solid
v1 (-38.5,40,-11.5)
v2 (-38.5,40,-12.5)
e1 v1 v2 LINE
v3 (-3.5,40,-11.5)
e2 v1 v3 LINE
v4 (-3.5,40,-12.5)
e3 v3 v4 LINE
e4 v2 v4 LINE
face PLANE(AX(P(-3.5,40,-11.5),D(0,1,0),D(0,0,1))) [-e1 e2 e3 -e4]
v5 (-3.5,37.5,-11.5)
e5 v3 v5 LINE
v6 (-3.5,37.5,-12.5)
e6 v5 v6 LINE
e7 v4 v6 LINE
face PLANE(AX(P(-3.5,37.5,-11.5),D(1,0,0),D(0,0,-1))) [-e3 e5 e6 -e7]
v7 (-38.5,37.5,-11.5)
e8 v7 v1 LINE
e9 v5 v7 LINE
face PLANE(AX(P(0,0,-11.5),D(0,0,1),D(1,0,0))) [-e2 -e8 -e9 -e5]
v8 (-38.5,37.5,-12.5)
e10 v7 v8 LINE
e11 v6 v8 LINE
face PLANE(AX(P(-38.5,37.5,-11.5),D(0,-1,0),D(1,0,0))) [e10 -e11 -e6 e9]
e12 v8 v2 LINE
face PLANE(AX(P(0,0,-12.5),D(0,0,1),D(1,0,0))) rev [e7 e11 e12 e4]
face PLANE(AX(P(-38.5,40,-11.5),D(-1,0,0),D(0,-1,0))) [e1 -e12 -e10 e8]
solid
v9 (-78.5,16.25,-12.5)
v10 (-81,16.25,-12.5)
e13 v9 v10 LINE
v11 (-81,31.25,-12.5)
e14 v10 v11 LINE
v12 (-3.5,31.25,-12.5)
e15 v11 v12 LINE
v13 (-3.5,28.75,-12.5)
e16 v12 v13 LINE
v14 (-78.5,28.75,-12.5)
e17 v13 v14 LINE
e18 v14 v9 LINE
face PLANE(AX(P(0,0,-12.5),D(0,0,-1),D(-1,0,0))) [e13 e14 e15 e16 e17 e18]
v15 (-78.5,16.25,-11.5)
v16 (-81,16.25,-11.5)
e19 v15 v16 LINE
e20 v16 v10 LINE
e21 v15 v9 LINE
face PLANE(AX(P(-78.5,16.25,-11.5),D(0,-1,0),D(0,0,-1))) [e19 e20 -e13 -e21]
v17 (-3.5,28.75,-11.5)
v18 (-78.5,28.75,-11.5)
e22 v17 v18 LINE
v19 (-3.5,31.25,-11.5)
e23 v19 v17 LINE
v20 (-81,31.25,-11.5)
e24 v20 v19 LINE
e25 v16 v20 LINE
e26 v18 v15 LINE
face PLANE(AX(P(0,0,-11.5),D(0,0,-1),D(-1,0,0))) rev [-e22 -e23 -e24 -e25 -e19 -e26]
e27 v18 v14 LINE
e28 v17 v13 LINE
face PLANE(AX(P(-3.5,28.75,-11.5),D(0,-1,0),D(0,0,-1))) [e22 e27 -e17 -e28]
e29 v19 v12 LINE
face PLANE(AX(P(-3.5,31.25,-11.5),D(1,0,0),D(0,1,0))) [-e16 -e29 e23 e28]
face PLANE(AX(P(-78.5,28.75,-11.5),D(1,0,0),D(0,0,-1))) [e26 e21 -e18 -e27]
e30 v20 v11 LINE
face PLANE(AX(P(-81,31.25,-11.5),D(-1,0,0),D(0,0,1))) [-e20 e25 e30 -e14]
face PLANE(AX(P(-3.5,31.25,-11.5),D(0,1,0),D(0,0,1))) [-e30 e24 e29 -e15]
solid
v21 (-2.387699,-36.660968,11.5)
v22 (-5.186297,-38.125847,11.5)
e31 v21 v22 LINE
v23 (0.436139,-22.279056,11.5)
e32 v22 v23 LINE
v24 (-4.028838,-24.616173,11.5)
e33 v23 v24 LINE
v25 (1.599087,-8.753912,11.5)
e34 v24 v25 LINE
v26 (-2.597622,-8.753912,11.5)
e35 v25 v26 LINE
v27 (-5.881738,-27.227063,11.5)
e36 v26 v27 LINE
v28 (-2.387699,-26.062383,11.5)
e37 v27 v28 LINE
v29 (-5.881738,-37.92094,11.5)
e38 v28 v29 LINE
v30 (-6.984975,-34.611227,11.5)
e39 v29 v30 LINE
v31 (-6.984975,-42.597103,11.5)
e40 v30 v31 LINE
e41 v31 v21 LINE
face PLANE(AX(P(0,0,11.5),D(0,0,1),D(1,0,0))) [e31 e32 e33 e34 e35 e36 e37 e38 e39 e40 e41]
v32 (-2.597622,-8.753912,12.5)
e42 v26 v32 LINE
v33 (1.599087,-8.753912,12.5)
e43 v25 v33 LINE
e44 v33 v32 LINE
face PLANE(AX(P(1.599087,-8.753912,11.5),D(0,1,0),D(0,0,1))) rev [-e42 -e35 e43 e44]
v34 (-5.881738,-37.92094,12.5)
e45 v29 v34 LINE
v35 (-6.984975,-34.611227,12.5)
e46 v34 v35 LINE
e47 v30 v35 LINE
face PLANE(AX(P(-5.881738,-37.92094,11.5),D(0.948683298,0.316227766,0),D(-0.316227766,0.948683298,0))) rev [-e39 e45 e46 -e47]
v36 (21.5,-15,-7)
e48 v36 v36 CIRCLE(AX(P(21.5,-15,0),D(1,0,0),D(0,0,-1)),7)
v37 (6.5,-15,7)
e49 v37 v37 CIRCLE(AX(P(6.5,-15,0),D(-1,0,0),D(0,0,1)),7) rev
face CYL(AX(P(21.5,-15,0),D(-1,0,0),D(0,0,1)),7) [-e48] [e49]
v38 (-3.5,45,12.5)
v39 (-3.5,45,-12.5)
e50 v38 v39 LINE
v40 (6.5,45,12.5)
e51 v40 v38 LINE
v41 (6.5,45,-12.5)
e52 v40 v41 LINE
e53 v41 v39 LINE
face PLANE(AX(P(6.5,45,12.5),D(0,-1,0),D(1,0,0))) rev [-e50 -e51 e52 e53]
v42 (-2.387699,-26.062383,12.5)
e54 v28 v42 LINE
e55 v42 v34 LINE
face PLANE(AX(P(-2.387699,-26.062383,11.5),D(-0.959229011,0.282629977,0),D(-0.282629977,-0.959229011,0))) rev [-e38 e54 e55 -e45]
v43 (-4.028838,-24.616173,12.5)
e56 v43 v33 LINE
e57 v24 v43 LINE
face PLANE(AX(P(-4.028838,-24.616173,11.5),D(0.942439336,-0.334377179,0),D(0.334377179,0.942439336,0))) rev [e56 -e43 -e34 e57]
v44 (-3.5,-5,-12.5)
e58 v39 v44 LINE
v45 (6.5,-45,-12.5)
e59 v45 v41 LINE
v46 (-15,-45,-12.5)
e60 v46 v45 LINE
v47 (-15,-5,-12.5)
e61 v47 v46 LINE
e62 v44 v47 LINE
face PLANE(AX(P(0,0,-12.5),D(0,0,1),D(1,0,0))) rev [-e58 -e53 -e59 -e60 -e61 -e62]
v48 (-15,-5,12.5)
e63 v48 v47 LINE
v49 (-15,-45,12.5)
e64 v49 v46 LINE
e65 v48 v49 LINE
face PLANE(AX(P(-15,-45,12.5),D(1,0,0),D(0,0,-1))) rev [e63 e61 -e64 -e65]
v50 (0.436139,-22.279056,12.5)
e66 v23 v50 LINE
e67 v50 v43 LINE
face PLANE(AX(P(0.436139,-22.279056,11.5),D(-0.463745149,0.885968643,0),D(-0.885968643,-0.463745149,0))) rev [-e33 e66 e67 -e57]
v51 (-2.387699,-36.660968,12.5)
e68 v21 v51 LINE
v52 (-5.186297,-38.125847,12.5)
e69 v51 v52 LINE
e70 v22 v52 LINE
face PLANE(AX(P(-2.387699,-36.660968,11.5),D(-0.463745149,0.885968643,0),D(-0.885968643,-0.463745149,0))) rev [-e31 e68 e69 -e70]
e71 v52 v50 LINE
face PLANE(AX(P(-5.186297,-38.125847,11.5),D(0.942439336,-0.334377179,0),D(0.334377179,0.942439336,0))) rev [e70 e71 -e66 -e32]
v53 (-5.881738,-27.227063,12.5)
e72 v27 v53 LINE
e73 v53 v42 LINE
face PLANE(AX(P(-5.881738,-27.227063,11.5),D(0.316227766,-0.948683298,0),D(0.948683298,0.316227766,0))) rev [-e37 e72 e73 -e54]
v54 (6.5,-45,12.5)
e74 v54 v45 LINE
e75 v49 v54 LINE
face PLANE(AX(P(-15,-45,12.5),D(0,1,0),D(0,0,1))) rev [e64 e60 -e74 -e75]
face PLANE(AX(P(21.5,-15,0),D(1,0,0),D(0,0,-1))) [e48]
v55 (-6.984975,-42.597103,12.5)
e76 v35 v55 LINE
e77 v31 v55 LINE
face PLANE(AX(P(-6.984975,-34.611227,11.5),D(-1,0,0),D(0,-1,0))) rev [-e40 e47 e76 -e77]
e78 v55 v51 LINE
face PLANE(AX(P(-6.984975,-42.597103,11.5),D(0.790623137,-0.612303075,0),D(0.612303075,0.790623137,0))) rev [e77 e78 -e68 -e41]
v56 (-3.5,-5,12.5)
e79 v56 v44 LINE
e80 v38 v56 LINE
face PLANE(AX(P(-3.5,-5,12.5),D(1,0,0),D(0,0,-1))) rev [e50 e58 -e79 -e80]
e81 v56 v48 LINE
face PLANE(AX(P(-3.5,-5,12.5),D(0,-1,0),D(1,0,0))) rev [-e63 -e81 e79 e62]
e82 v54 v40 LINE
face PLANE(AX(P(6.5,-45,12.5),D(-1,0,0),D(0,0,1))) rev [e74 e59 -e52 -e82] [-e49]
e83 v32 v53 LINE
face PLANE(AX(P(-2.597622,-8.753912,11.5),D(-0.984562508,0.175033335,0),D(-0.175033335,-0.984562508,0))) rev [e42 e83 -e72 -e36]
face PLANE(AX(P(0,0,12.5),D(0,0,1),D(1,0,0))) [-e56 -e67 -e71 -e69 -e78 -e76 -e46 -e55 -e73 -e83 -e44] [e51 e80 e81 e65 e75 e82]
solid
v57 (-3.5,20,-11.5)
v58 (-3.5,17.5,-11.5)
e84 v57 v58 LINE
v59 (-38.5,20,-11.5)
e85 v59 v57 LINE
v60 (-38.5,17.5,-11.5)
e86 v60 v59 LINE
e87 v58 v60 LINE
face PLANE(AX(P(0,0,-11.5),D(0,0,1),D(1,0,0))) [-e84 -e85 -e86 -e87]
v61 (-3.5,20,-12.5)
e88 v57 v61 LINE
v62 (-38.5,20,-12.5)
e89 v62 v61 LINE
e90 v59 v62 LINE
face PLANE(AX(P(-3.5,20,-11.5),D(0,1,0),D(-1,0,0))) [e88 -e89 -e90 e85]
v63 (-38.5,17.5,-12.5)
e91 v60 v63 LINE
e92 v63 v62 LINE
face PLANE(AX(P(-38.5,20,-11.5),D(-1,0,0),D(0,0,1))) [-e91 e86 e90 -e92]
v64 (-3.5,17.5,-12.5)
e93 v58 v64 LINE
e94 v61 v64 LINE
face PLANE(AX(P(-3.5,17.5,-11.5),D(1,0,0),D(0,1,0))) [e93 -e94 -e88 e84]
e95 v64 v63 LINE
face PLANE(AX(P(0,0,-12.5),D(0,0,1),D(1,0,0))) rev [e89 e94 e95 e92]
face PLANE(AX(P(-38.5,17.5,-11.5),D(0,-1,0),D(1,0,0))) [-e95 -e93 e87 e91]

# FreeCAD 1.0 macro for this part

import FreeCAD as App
import Part
import Sketcher
from FreeCAD import Vector
Q = App.Units.Quantity

doc = App.newDocument("Part")
body = doc.addObject("PartDesign::Body", "Body")

sketch1 = body.newObject("Sketcher::SketchObject", "Sketch")
sketch1.AttachmentSupport = (doc.getObject("XY_Plane"), [""])
sketch1.MapMode = "FlatFace"
sketch1.addGeometry(Part.LineSegment(Vector(-15, -45, 0), Vector(6, -45, 0)), False)
sketch1.addGeometry(Part.LineSegment(Vector(6, -45, 0), Vector(6, 45, 0)), False)
sketch1.addGeometry(Part.LineSegment(Vector(6, 45, 0), Vector(-4, 45, 0)), False)
sketch1.addGeometry(Part.LineSegment(Vector(-4, 45, 0), Vector(-4, -5, 0)), False)
sketch1.addGeometry(Part.LineSegment(Vector(-4, -5, 0), Vector(-15, -5, 0)), False)
sketch1.addGeometry(Part.LineSegment(Vector(-15, -5, 0), Vector(-15, -45, 0)), False)
sketch1.addConstraint(Sketcher.Constraint("Coincident", 0, 2, 1, 1))
sketch1.addConstraint(Sketcher.Constraint("Coincident", 1, 2, 2, 1))
sketch1.addConstraint(Sketcher.Constraint("Coincident", 2, 2, 3, 1))
sketch1.addConstraint(Sketcher.Constraint("Coincident", 3, 2, 4, 1))
sketch1.addConstraint(Sketcher.Constraint("Coincident", 4, 2, 5, 1))
sketch1.addConstraint(Sketcher.Constraint("Coincident", 5, 2, 0, 1))
sketch1.addConstraint(Sketcher.Constraint("Horizontal", 0))
sketch1.addConstraint(Sketcher.Constraint("Vertical", 1))
sketch1.addConstraint(Sketcher.Constraint("Horizontal", 2))
sketch1.addConstraint(Sketcher.Constraint("Vertical", 3))
sketch1.addConstraint(Sketcher.Constraint("Horizontal", 4))
sketch1.addConstraint(Sketcher.Constraint("Vertical", 5))
sketch1.addConstraint(Sketcher.Constraint("DistanceX", 2, 2, 2, 1, Q("10 mm")))
sketch1.addConstraint(Sketcher.Constraint("DistanceY", 1, 1, 1, 2, Q("90 mm")))
sketch1.addConstraint(Sketcher.Constraint("DistanceY", 3, 2, 3, 1, Q("50 mm")))
sketch1.addConstraint(Sketcher.Constraint("DistanceX", 0, 1, 0, 2, Q("21.5 mm")))
sketch1.addConstraint(Sketcher.Constraint("DistanceY", 0, 2, -1, 1, Q("45 mm")))
sketch1.addConstraint(Sketcher.Constraint("DistanceX", 4, 2, -1, 1, Q("15 mm")))
pad1 = body.newObject("PartDesign::Pad", "Pad")
pad1.Profile = sketch1
pad1.Length = 25
pad1.Midplane = True

sketch2 = body.newObject("Sketcher::SketchObject", "Sketch001")
sketch2.AttachmentSupport = (doc.getObject("XY_Plane"), [""])
sketch2.MapMode = "FlatFace"
sketch2.AttachmentOffset = App.Placement(Vector(0, 0, 12.5), App.Rotation())
sketch2.addGeometry(Part.LineSegment(Vector(-2.6, -8.8, 0), Vector(-5.9, -27.2, 0)), False)
sketch2.addGeometry(Part.LineSegment(Vector(-5.9, -27.2, 0), Vector(-2.4, -26.1, 0)), False)
sketch2.addGeometry(Part.LineSegment(Vector(-2.4, -26.1, 0), Vector(-5.9, -37.9, 0)), False)
sketch2.addGeometry(Part.LineSegment(Vector(-5.9, -37.9, 0), Vector(-7, -34.6, 0)), False)
sketch2.addGeometry(Part.LineSegment(Vector(-7, -34.6, 0), Vector(-7, -42.6, 0)), False)
sketch2.addGeometry(Part.LineSegment(Vector(-7, -42.6, 0), Vector(-2.4, -36.7, 0)), False)
sketch2.addGeometry(Part.LineSegment(Vector(-2.4, -36.7, 0), Vector(-5.2, -38.1, 0)), False)
sketch2.addGeometry(Part.LineSegment(Vector(-5.2, -38.1, 0), Vector(0.4, -22.3, 0)), False)
sketch2.addGeometry(Part.LineSegment(Vector(0.4, -22.3, 0), Vector(-4, -24.6, 0)), False)
sketch2.addGeometry(Part.LineSegment(Vector(-4, -24.6, 0), Vector(1.6, -8.8, 0)), False)
sketch2.addGeometry(Part.LineSegment(Vector(1.6, -8.8, 0), Vector(-2.6, -8.8, 0)), False)
sketch2.addConstraint(Sketcher.Constraint("Coincident", 0, 2, 1, 1))
sketch2.addConstraint(Sketcher.Constraint("Coincident", 1, 2, 2, 1))
sketch2.addConstraint(Sketcher.Constraint("Coincident", 2, 2, 3, 1))
sketch2.addConstraint(Sketcher.Constraint("Coincident", 3, 2, 4, 1))
sketch2.addConstraint(Sketcher.Constraint("Coincident", 4, 2, 5, 1))
sketch2.addConstraint(Sketcher.Constraint("Coincident", 5, 2, 6, 1))
sketch2.addConstraint(Sketcher.Constraint("Coincident", 6, 2, 7, 1))
sketch2.addConstraint(Sketcher.Constraint("Coincident", 7, 2, 8, 1))
sketch2.addConstraint(Sketcher.Constraint("Coincident", 8, 2, 9, 1))
sketch2.addConstraint(Sketcher.Constraint("Coincident", 9, 2, 10, 1))
sketch2.addConstraint(Sketcher.Constraint("Coincident", 10, 2, 0, 1))
sketch2.addConstraint(Sketcher.Constraint("Vertical", 4))
sketch2.addConstraint(Sketcher.Constraint("Horizontal", 10))
sketch2.addConstraint(Sketcher.Constraint("Perpendicular", 1, 3))
sketch2.addConstraint(Sketcher.Constraint("Parallel", 6, 8))
sketch2.addConstraint(Sketcher.Constraint("Parallel", 7, 9))
sketch2.addConstraint(Sketcher.Constraint("Vertical", 0, 2, 2, 2))
sketch2.addConstraint(Sketcher.Constraint("Vertical", 1, 2, 5, 2))
sketch2.addConstraint(Sketcher.Constraint("Distance", 0, Q("18.762802 mm")))
sketch2.addConstraint(Sketcher.Constraint("Distance", 6, Q("3.1588 mm")))
sketch2.addConstraint(Sketcher.Constraint("DistanceX", 10, 2, 10, 1, Q("4.196709 mm")))
sketch2.addConstraint(Sketcher.Constraint("DistanceX", 1, 2, -1, 1, Q("2.387699 mm")))
sketch2.addConstraint(Sketcher.Constraint("DistanceX", 6, 2, 5, 2, Q("2.798598 mm")))
sketch2.addConstraint(Sketcher.Constraint("DistanceX", 0, 2, 8, 2, Q("1.8529 mm")))
sketch2.addConstraint(Sketcher.Constraint("Distance", 1, Q("3.683041 mm")))
sketch2.addConstraint(Sketcher.Constraint("Distance", 5, Q("7.508172 mm")))
sketch2.addConstraint(Sketcher.Constraint("Distance", 9, Q("16.831068 mm")))
sketch2.addConstraint(Sketcher.Constraint("DistanceY", 4, 2, 4, 1, Q("7.985876 mm")))
sketch2.addConstraint(Sketcher.Constraint("DistanceY", 2, 2, -1, 1, Q("37.92094 mm")))
sketch2.addConstraint(Sketcher.Constraint("DistanceY", 5, 2, -1, 1, Q("36.660968 mm")))
sketch2.addConstraint(Sketcher.Constraint("DistanceX", -1, 1, 7, 2, Q("0.436139 mm")))
sketch2.addConstraint(Sketcher.Constraint("DistanceX", 8, 2, -1, 1, Q("4.028838 mm")))
sketch2.addConstraint(Sketcher.Constraint("DistanceY", 9, 2, -1, 1, Q("8.753912 mm")))
pocket1 = body.newObject("PartDesign::Pocket", "Pocket")
pocket1.Profile = sketch2
pocket1.Length = 1

sketch3 = body.newObject("Sketcher::SketchObject", "Sketch002")
sketch3.AttachmentSupport = (doc.getObject("YZ_Plane"), [""])
sketch3.MapMode = "FlatFace"
sketch3.AttachmentOffset = App.Placement(Vector(0, 0, 6.5), App.Rotation())
sketch3.addGeometry(Part.Circle(Vector(-15, 0, 0), Vector(0, 0, 1), 7), False)
sketch3.addConstraint(Sketcher.Constraint("PointOnObject", 0, 3, -1))
sketch3.addConstraint(Sketcher.Constraint("Diameter", 0, Q("14 mm")))
sketch3.addConstraint(Sketcher.Constraint("DistanceX", 0, 3, -1, 1, Q("15 mm")))
pad2 = body.newObject("PartDesign::Pad", "Pad001")
pad2.Profile = sketch3
pad2.Length = 15
body2 = doc.addObject("PartDesign::Body", "Body001")

sketch4 = body2.newObject("Sketcher::SketchObject", "Sketch003")
sketch4.AttachmentSupport = (doc.getObject("XY_Plane001"), [""])
sketch4.MapMode = "FlatFace"
sketch4.AttachmentOffset = App.Placement(Vector(0, 0, -12.5), App.Rotation())
sketch4.addGeometry(Part.LineSegment(Vector(-3.5, 40, 0), Vector(-3.5, 37.5, 0)), False)
sketch4.addGeometry(Part.LineSegment(Vector(-3.5, 37.5, 0), Vector(-38.5, 37.5, 0)), False)
sketch4.addGeometry(Part.LineSegment(Vector(-38.5, 37.5, 0), Vector(-38.5, 40, 0)), False)
sketch4.addGeometry(Part.LineSegment(Vector(-38.5, 40, 0), Vector(-3.5, 40, 0)), False)
sketch4.addConstraint(Sketcher.Constraint("Coincident", 0, 2, 1, 1))
sketch4.addConstraint(Sketcher.Constraint("Coincident", 1, 2, 2, 1))
sketch4.addConstraint(Sketcher.Constraint("Coincident", 2, 2, 3, 1))
sketch4.addConstraint(Sketcher.Constraint("Coincident", 3, 2, 0, 1))
sketch4.addConstraint(Sketcher.Constraint("Vertical", 0))
sketch4.addConstraint(Sketcher.Constraint("Horizontal", 1))
sketch4.addConstraint(Sketcher.Constraint("Vertical", 2))
sketch4.addConstraint(Sketcher.Constraint("Horizontal", 3))
sketch4.addConstraint(Sketcher.Constraint("DistanceX", 1, 2, 1, 1, Q("35 mm")))
sketch4.addConstraint(Sketcher.Constraint("DistanceY", 0, 2, 0, 1, Q("2.5 mm")))
sketch4.addConstraint(Sketcher.Constraint("DistanceY", -1, 1, 2, 2, Q("40 mm")))
sketch4.addConstraint(Sketcher.Constraint("DistanceX", 0, 2, -1, 1, Q("3.5 mm")))
pad3 = body2.newObject("PartDesign::Pad", "Pad002")
pad3.Profile = sketch4
pad3.Length = 1
body3 = doc.addObject("PartDesign::Body", "Body002")

sketch5 = body3.newObject("Sketcher::SketchObject", "Sketch004")
sketch5.AttachmentSupport = (doc.getObject("XY_Plane002"), [""])
sketch5.MapMode = "FlatFace"
sketch5.AttachmentOffset = App.Placement(Vector(0, 0, -12.5), App.Rotation())
sketch5.addGeometry(Part.LineSegment(Vector(-3.5, 20, 0), Vector(-3.5, 17.5, 0)), False)
sketch5.addGeometry(Part.LineSegment(Vector(-3.5, 17.5, 0), Vector(-38.5, 17.5, 0)), False)
sketch5.addGeometry(Part.LineSegment(Vector(-38.5, 17.5, 0), Vector(-38.5, 20, 0)), False)
sketch5.addGeometry(Part.LineSegment(Vector(-38.5, 20, 0), Vector(-3.5, 20, 0)), False)
sketch5.addConstraint(Sketcher.Constraint("Coincident", 0, 2, 1, 1))
sketch5.addConstraint(Sketcher.Constraint("Coincident", 1, 2, 2, 1))
sketch5.addConstraint(Sketcher.Constraint("Coincident", 2, 2, 3, 1))
sketch5.addConstraint(Sketcher.Constraint("Coincident", 3, 2, 0, 1))
sketch5.addConstraint(Sketcher.Constraint("Vertical", 0))
sketch5.addConstraint(Sketcher.Constraint("Horizontal", 1))
sketch5.addConstraint(Sketcher.Constraint("Vertical", 2))
sketch5.addConstraint(Sketcher.Constraint("Horizontal", 3))
sketch5.addConstraint(Sketcher.Constraint("DistanceX", 1, 2, 1, 1, Q("35 mm")))
sketch5.addConstraint(Sketcher.Constraint("DistanceY", 0, 2, 0, 1, Q("2.5 mm")))
sketch5.addConstraint(Sketcher.Constraint("DistanceY", -1, 1, 2, 2, Q("20 mm")))
sketch5.addConstraint(Sketcher.Constraint("DistanceX", 0, 2, -1, 1, Q("3.5 mm")))
pad4 = body3.newObject("PartDesign::Pad", "Pad003")
pad4.Profile = sketch5
pad4.Length = 1
body4 = doc.addObject("PartDesign::Body", "Body003")

sketch6 = body4.newObject("Sketcher::SketchObject", "Sketch005")
sketch6.AttachmentSupport = (doc.getObject("XY_Plane003"), [""])
sketch6.MapMode = "FlatFace"
sketch6.AttachmentOffset = App.Placement(Vector(0, 0, -12.5), App.Rotation())
sketch6.addGeometry(Part.LineSegment(Vector(-81, 31.2, 0), Vector(-3.5, 31.2, 0)), False)
sketch6.addGeometry(Part.LineSegment(Vector(-3.5, 31.2, 0), Vector(-3.5, 28.8, 0)), False)
sketch6.addGeometry(Part.LineSegment(Vector(-3.5, 28.8, 0), Vector(-78.5, 28.8, 0)), False)
sketch6.addGeometry(Part.LineSegment(Vector(-78.5, 28.8, 0), Vector(-78.5, 16.2, 0)), False)
sketch6.addGeometry(Part.LineSegment(Vector(-78.5, 16.2, 0), Vector(-81, 16.2, 0)), False)
sketch6.addGeometry(Part.LineSegment(Vector(-81, 16.2, 0), Vector(-81, 31.2, 0)), False)
sketch6.addConstraint(Sketcher.Constraint("Coincident", 0, 2, 1, 1))
sketch6.addConstraint(Sketcher.Constraint("Coincident", 1, 2, 2, 1))
sketch6.addConstraint(Sketcher.Constraint("Coincident", 2, 2, 3, 1))
sketch6.addConstraint(Sketcher.Constraint("Coincident", 3, 2, 4, 1))
sketch6.addConstraint(Sketcher.Constraint("Coincident", 4, 2, 5, 1))
sketch6.addConstraint(Sketcher.Constraint("Coincident", 5, 2, 0, 1))
sketch6.addConstraint(Sketcher.Constraint("Horizontal", 0))
sketch6.addConstraint(Sketcher.Constraint("Vertical", 1))
sketch6.addConstraint(Sketcher.Constraint("Horizontal", 2))
sketch6.addConstraint(Sketcher.Constraint("Vertical", 3))
sketch6.addConstraint(Sketcher.Constraint("Horizontal", 4))
sketch6.addConstraint(Sketcher.Constraint("Vertical", 5))
sketch6.addConstraint(Sketcher.Constraint("Equal", 4, 1))
sketch6.addConstraint(Sketcher.Constraint("DistanceX", 2, 2, 2, 1, Q("75 mm")))
sketch6.addConstraint(Sketcher.Constraint("DistanceY", 5, 1, 5, 2, Q("15 mm")))
sketch6.addConstraint(Sketcher.Constraint("DistanceX", 0, 1, 0, 2, Q("77.5 mm")))
sketch6.addConstraint(Sketcher.Constraint("DistanceX", 4, 2, -1, 1, Q("81 mm")))
sketch6.addConstraint(Sketcher.Constraint("DistanceY", -1, 1, 0, 2, Q("31.25 mm")))
pad5 = body4.newObject("PartDesign::Pad", "Pad004")
pad5.Profile = sketch6
pad5.Length = 1

doc.recompute()
